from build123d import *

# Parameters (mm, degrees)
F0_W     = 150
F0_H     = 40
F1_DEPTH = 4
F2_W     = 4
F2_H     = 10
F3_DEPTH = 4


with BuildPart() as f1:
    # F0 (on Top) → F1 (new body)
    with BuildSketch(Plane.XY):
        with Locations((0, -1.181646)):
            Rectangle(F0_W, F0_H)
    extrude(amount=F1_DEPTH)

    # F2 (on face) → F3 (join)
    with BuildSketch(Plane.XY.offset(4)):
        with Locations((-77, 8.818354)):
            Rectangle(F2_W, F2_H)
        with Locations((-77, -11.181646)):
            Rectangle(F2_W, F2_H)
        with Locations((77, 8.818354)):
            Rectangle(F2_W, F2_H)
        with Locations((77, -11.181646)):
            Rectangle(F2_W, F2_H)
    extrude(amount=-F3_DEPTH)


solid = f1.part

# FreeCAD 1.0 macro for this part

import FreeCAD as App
import Part
import Sketcher

V = App.Vector
Q = App.Units.Quantity

doc = App.newDocument("Part")
body = doc.addObject("PartDesign::Body", "Body")

# Sketch on XY plane
sketch1 = body.newObject("Sketcher::SketchObject", "Sketch")
sketch1.AttachmentSupport = (doc.getObject("XY_Plane"), [""])
sketch1.MapMode = "FlatFace"
sketch1.addGeometry([
    Part.LineSegment(V(-75, 19, 0), V(-75, -21, 0)),
    Part.LineSegment(V(-75, -21, 0), V(75, -21, 0)),
    Part.LineSegment(V(75, -21, 0), V(75, 19, 0)),
    Part.LineSegment(V(75, 19, 0), V(-75, 19, 0)),
], False)
sketch1.addConstraint([
    Sketcher.Constraint("Coincident", 0, 2, 1, 1),
    Sketcher.Constraint("Coincident", 1, 2, 2, 1),
    Sketcher.Constraint("Coincident", 2, 2, 3, 1),
    Sketcher.Constraint("Coincident", 3, 2, 0, 1),
    Sketcher.Constraint("Vertical", 0),
    Sketcher.Constraint("Horizontal", 1),
    Sketcher.Constraint("Vertical", 2),
    Sketcher.Constraint("Horizontal", 3),
    Sketcher.Constraint("DistanceX", 1, 1, 1, 2, Q("150 mm")),
    Sketcher.Constraint("DistanceY", 0, 2, 0, 1, Q("40 mm")),
    Sketcher.Constraint("DistanceX", 0, 2, -1, 1, Q("75 mm")),
    Sketcher.Constraint("DistanceY", 0, 2, -1, 1, Q("21.181646 mm")),
])
pad1 = body.newObject("PartDesign::Pad", "Pad")
pad1.Profile = sketch1
pad1.Length = 4

# Sketch on XY plane
sketch2 = body.newObject("Sketcher::SketchObject", "Sketch001")
sketch2.AttachmentSupport = (doc.getObject("XY_Plane"), [""])
sketch2.MapMode = "FlatFace"
sketch2.AttachmentOffset = App.Placement(V(0, 0, 4), App.Rotation())
sketch2.addGeometry([
    Part.LineSegment(V(-79, 13.8, 0), V(-79, 3.8, 0)),  # 0
    Part.LineSegment(V(-79, 3.8, 0), V(-75, 3.8, 0)),  # 1
    Part.LineSegment(V(-75, 3.8, 0), V(-75, 13.8, 0)),  # 2
    Part.LineSegment(V(-75, 13.8, 0), V(-79, 13.8, 0)),  # 3
    Part.LineSegment(V(-79, -6.2, 0), V(-79, -16.2, 0)),  # 4
    Part.LineSegment(V(-79, -16.2, 0), V(-75, -16.2, 0)),  # 5
    Part.LineSegment(V(-75, -16.2, 0), V(-75, -6.2, 0)),  # 6
    Part.LineSegment(V(-75, -6.2, 0), V(-79, -6.2, 0)),  # 7
    Part.LineSegment(V(75, 13.8, 0), V(75, 3.8, 0)),  # 8
    Part.LineSegment(V(75, 3.8, 0), V(79, 3.8, 0)),  # 9
    Part.LineSegment(V(79, 3.8, 0), V(79, 13.8, 0)),  # 10
    Part.LineSegment(V(79, 13.8, 0), V(75, 13.8, 0)),  # 11
    Part.LineSegment(V(75, -6.2, 0), V(75, -16.2, 0)),  # 12
    Part.LineSegment(V(75, -16.2, 0), V(79, -16.2, 0)),  # 13
    Part.LineSegment(V(79, -16.2, 0), V(79, -6.2, 0)),  # 14
    Part.LineSegment(V(79, -6.2, 0), V(75, -6.2, 0)),  # 15
], False)
sketch2.addConstraint([
    Sketcher.Constraint("Coincident", 0, 2, 1, 1),
    Sketcher.Constraint("Coincident", 1, 2, 2, 1),
    Sketcher.Constraint("Coincident", 2, 2, 3, 1),
    Sketcher.Constraint("Coincident", 3, 2, 0, 1),
    Sketcher.Constraint("Coincident", 4, 2, 5, 1),
    Sketcher.Constraint("Coincident", 5, 2, 6, 1),
    Sketcher.Constraint("Coincident", 6, 2, 7, 1),
    Sketcher.Constraint("Coincident", 7, 2, 4, 1),
    Sketcher.Constraint("Coincident", 8, 2, 9, 1),
    Sketcher.Constraint("Coincident", 9, 2, 10, 1),
    Sketcher.Constraint("Coincident", 10, 2, 11, 1),
    Sketcher.Constraint("Coincident", 11, 2, 8, 1),
    Sketcher.Constraint("Coincident", 12, 2, 13, 1),
    Sketcher.Constraint("Coincident", 13, 2, 14, 1),
    Sketcher.Constraint("Coincident", 14, 2, 15, 1),
    Sketcher.Constraint("Coincident", 15, 2, 12, 1),
    Sketcher.Constraint("Vertical", 0),
    Sketcher.Constraint("Horizontal", 1),
    Sketcher.Constraint("Vertical", 2),
    Sketcher.Constraint("Horizontal", 3),
    Sketcher.Constraint("Vertical", 4),
    Sketcher.Constraint("Horizontal", 5),
    Sketcher.Constraint("Vertical", 6),
    Sketcher.Constraint("Horizontal", 7),
    Sketcher.Constraint("Vertical", 8),
    Sketcher.Constraint("Horizontal", 9),
    Sketcher.Constraint("Vertical", 10),
    Sketcher.Constraint("Horizontal", 11),
    Sketcher.Constraint("Vertical", 12),
    Sketcher.Constraint("Horizontal", 13),
    Sketcher.Constraint("Vertical", 14),
    Sketcher.Constraint("Horizontal", 15),
    Sketcher.Constraint("Symmetric", 1, 2, 8, 2, -2),
    Sketcher.Constraint("Symmetric", 3, 2, 10, 2, -2),
    Sketcher.Constraint("Symmetric", 5, 2, 12, 2, -2),
    Sketcher.Constraint("Symmetric", 7, 2, 14, 2, -2),
    Sketcher.Constraint("Vertical", 3, 2, 4, 2),
    Sketcher.Constraint("Vertical", 2, 2, 5, 2),
    Sketcher.Constraint("Equal", 2, 4),
    Sketcher.Constraint("DistanceX", 1, 1, 1, 2, Q("4 mm")),
    Sketcher.Constraint("DistanceY", 0, 2, 0, 1, Q("10 mm")),
    Sketcher.Constraint("DistanceX", 0, 2, -1, 1, Q("79 mm")),
    Sketcher.Constraint("DistanceY", 4, 2, 0, 2, Q("20 mm")),
    Sketcher.Constraint("DistanceY", -1, 1, 0, 2, Q("3.818354 mm")),
])
pad2 = body.newObject("PartDesign::Pad", "Pad001")
pad2.Profile = sketch2
pad2.Length = 4
pad2.Reversed = True

doc.recompute()
